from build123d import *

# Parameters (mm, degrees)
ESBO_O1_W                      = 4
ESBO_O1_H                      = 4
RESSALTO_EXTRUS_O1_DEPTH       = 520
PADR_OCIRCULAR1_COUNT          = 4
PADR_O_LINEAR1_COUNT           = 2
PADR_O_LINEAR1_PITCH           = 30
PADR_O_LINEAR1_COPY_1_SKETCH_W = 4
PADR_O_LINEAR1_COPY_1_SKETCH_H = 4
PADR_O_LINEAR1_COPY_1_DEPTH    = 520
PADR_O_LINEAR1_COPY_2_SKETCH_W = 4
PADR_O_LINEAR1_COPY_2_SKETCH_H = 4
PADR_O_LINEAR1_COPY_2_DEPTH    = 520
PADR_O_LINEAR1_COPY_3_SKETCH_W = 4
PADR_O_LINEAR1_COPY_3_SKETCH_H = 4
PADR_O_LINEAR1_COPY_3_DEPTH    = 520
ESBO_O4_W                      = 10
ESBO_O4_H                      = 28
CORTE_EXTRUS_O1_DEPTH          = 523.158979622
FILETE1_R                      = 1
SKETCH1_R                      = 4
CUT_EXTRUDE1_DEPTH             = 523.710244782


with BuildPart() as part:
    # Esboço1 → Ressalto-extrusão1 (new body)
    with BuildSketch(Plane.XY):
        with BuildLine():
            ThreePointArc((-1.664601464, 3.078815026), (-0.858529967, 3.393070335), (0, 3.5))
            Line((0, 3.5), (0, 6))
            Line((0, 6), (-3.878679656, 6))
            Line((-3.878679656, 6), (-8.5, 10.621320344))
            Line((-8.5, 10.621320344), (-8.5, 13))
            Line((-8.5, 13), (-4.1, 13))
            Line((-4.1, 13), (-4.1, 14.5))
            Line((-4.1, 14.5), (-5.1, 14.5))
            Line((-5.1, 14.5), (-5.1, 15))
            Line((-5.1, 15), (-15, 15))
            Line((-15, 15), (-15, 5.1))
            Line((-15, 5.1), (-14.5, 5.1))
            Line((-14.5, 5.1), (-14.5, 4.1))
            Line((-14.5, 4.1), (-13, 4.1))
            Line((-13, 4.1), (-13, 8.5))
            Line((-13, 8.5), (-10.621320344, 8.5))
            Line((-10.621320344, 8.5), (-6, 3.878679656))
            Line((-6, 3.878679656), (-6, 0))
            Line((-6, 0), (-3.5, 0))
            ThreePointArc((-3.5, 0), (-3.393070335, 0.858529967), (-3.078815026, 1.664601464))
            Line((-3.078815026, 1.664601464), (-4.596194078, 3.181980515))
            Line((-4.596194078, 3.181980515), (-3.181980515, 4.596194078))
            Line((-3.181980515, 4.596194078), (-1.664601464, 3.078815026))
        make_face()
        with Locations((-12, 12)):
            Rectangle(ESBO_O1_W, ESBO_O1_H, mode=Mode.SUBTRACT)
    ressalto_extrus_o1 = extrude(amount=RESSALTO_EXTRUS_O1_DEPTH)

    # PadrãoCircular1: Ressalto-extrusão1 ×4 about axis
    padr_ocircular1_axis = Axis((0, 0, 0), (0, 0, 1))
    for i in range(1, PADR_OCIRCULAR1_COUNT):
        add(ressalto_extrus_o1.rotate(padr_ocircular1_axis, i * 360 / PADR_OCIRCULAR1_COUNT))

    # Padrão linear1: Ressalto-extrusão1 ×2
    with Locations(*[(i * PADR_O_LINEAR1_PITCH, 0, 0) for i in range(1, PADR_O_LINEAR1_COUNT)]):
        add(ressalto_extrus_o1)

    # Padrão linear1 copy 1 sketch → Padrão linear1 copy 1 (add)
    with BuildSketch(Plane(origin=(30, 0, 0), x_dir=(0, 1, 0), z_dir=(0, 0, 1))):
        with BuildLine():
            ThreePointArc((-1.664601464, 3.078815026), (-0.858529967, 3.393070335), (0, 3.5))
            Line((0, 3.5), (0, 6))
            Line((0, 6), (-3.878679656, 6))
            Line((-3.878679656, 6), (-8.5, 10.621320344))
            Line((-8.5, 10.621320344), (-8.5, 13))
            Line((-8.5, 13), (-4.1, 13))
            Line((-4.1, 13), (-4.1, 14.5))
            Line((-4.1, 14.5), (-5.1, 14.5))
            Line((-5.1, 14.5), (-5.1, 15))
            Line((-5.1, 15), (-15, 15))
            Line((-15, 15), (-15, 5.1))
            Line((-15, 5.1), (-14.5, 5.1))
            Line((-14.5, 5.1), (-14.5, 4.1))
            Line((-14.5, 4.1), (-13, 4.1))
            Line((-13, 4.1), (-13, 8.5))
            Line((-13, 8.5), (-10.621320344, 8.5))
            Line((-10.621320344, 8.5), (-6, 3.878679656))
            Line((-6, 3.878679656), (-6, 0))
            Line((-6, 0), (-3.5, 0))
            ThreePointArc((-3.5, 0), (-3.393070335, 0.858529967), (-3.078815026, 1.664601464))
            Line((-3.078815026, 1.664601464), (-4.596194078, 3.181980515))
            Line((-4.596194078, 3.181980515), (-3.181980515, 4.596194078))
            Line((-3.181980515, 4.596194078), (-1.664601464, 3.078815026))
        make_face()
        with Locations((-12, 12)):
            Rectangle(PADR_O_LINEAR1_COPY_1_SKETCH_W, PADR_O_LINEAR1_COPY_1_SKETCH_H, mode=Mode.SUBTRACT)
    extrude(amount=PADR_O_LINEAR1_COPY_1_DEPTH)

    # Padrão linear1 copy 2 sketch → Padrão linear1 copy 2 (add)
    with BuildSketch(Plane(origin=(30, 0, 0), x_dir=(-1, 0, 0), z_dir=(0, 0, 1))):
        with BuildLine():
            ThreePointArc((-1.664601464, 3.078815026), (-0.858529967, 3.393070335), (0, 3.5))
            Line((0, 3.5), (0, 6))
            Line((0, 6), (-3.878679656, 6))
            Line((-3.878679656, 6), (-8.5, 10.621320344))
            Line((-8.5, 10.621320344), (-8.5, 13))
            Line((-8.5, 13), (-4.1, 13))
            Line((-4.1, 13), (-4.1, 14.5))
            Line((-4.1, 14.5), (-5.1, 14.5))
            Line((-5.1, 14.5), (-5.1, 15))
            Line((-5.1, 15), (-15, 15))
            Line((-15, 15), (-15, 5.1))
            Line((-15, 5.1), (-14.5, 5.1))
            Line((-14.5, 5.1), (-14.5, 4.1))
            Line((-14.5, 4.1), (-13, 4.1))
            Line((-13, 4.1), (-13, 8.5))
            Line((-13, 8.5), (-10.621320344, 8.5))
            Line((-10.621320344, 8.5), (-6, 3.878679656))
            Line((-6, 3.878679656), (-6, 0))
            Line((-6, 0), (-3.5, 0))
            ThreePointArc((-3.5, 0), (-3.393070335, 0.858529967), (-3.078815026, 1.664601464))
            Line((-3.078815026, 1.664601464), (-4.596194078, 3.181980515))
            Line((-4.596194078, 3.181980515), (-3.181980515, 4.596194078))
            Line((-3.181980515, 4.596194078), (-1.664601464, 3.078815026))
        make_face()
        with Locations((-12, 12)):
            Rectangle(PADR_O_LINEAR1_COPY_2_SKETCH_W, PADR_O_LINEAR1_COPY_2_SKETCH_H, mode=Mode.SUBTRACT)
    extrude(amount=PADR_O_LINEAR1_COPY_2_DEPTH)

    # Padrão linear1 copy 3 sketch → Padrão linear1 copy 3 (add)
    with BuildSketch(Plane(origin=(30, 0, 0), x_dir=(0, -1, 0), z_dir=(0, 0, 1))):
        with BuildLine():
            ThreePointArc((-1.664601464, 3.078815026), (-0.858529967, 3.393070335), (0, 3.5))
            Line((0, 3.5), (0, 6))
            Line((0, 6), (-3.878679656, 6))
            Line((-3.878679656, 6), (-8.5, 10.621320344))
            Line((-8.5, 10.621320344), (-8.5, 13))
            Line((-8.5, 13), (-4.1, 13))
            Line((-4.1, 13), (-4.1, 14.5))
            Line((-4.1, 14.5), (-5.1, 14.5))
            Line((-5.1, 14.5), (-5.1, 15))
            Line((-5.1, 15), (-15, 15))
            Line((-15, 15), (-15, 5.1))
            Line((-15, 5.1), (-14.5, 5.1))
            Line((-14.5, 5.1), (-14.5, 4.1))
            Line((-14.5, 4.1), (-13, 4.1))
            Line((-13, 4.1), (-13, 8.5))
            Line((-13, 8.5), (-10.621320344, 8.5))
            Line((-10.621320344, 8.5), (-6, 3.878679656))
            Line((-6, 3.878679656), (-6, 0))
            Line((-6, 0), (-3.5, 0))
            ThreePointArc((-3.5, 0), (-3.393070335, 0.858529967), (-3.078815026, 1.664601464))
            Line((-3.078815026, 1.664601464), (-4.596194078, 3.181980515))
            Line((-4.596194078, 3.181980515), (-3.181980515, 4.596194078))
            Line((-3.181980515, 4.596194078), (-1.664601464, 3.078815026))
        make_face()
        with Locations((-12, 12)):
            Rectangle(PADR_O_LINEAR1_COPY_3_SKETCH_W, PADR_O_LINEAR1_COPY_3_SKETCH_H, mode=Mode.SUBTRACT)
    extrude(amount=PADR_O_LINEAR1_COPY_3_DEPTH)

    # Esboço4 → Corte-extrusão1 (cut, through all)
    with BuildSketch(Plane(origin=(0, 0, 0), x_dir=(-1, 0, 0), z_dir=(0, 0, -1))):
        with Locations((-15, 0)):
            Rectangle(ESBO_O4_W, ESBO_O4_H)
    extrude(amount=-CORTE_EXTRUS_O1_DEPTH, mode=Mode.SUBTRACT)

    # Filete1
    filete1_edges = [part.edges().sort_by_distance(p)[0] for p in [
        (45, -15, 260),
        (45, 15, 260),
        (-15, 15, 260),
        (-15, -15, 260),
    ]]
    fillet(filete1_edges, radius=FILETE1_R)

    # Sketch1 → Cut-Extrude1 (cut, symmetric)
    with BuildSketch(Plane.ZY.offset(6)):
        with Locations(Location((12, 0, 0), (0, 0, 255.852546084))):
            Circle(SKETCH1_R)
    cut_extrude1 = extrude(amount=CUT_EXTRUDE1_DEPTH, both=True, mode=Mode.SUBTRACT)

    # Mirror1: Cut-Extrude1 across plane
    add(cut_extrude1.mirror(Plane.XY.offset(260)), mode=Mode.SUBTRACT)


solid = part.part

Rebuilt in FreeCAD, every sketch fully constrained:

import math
import FreeCAD as App
import Part
import Sketcher

V = App.Vector
Q = App.Units.Quantity


def edges_at(feature, points):
    """Names of the edges that pass closest to the given points."""
    edges = feature.Shape.Edges
    near = lambda p: min(range(len(edges)), key=lambda i: edges[i].distToShape(Part.Vertex(*p))[0])
    return sorted({f"Edge{near(p) + 1}" for p in points})


def add_polygon(sketch, points):
    """Adds a closed chain of lines whose ends are joined by coincident constraints."""
    first, n = sketch.GeometryCount, len(points)
    for a, b in zip(points, points[1:] + points[:1]):
        sketch.addGeometry(Part.LineSegment(App.Vector(*a, 0), App.Vector(*b, 0)), False)
    for i in range(n):
        sketch.addConstraint(Sketcher.Constraint("Coincident", first + i, 2, first + (i + 1) % n, 1))

doc = App.newDocument("Part")
params = doc.addObject("Spreadsheet::Sheet", "Params")
for row, (alias, value) in enumerate([
    ("sketch1_radius", "3.5 mm"),
    ("sketch1_width", "1 mm"),
    ("sketch1_width2", "4 mm"),
    ("sketch1_length", "2 mm"),
    ("sketch1_width3", "4.4 mm"),
    ("pad1_length", "520 mm"),
    ("linearpattern_pitch", "30 mm"),
    ("sketch2_radius", "3.5 mm"),
    ("sketch2_width", "1 mm"),
    ("sketch2_width2", "4 mm"),
    ("sketch2_length", "2 mm"),
    ("sketch2_width3", "2.5 mm"),
    ("pad2_length", "520 mm"),
    ("sketch3_radius", "3.5 mm"),
    ("sketch3_width", "1 mm"),
    ("sketch3_width2", "4 mm"),
    ("sketch3_length", "2 mm"),
    ("sketch3_width3", "4.4 mm"),
    ("pad3_length", "520 mm"),
    ("sketch4_radius", "3.5 mm"),
    ("sketch4_width", "1 mm"),
    ("sketch4_width2", "4 mm"),
    ("sketch4_length", "2 mm"),
    ("sketch4_width3", "2.5 mm"),
    ("pad4_length", "520 mm"),
    ("sketch5_width", "10 mm"),
    ("sketch5_height", "28 mm"),
    ("fillet_radius", "1 mm"),
    ("sketch6_diameter", "8 mm"),
    ("pocket2_length", "1047.42049 mm"),
], start=1):
    params.set(f"A{row}", alias)
    params.set(f"B{row}", "=" + value)
    params.setAlias(f"B{row}", alias)

body = doc.addObject("PartDesign::Body", "Body")

sketch1 = body.newObject("Sketcher::SketchObject", "Sketch")
sketch1.AttachmentSupport = (doc.getObject("XY_Plane"), [""])
sketch1.MapMode = "FlatFace"
sketch1.addGeometry(Part.ArcOfCircle(Part.Circle(V(0, 0, 0), V(0, 0, 1), 3.5), math.radians(90), math.radians(118.39845)), False)
sketch1.addGeometry(Part.LineSegment(V(0, 3.5, 0), V(0, 6, 0)), False)
sketch1.addGeometry(Part.LineSegment(V(0, 6, 0), V(-3.87868, 6, 0)), False)
sketch1.addGeometry(Part.LineSegment(V(-3.87868, 6, 0), V(-8.5, 10.62132, 0)), False)
sketch1.addGeometry(Part.LineSegment(V(-8.5, 10.62132, 0), V(-8.5, 13, 0)), False)
sketch1.addGeometry(Part.LineSegment(V(-8.5, 13, 0), V(-4.1, 13, 0)), False)
sketch1.addGeometry(Part.LineSegment(V(-4.1, 13, 0), V(-4.1, 14.5, 0)), False)
sketch1.addGeometry(Part.LineSegment(V(-4.1, 14.5, 0), V(-5.1, 14.5, 0)), False)
sketch1.addGeometry(Part.LineSegment(V(-5.1, 14.5, 0), V(-5.1, 15, 0)), False)
sketch1.addGeometry(Part.LineSegment(V(-5.1, 15, 0), V(-15, 15, 0)), False)
sketch1.addGeometry(Part.LineSegment(V(-15, 15, 0), V(-15, 5.1, 0)), False)
sketch1.addGeometry(Part.LineSegment(V(-15, 5.1, 0), V(-14.5, 5.1, 0)), False)
sketch1.addGeometry(Part.LineSegment(V(-14.5, 5.1, 0), V(-14.5, 4.1, 0)), False)
sketch1.addGeometry(Part.LineSegment(V(-14.5, 4.1, 0), V(-13, 4.1, 0)), False)
sketch1.addGeometry(Part.LineSegment(V(-13, 4.1, 0), V(-13, 8.5, 0)), False)
sketch1.addGeometry(Part.LineSegment(V(-13, 8.5, 0), V(-10.62132, 8.5, 0)), False)
sketch1.addGeometry(Part.LineSegment(V(-10.62132, 8.5, 0), V(-6, 3.87868, 0)), False)
sketch1.addGeometry(Part.LineSegment(V(-6, 3.87868, 0), V(-6, 0, 0)), False)
sketch1.addGeometry(Part.LineSegment(V(-6, 0, 0), V(-3.5, 0, 0)), False)
sketch1.addGeometry(Part.ArcOfCircle(Part.Circle(V(0, 0, 0), V(0, 0, 1), 3.5), math.radians(151.60155), math.radians(180)), False)
sketch1.addGeometry(Part.LineSegment(V(-3.078815, 1.664601, 0), V(-4.596194, 3.181981, 0)), False)
sketch1.addGeometry(Part.LineSegment(V(-4.596194, 3.181981, 0), V(-3.181981, 4.596194, 0)), False)
sketch1.addGeometry(Part.LineSegment(V(-3.181981, 4.596194, 0), V(-1.664601, 3.078815, 0)), False)
add_polygon(sketch1, [(-10, 10), (-14, 10), (-14, 14), (-10, 14)])
sketch1.addConstraint([
    Sketcher.Constraint("Coincident", 0, 1, 1, 1),
    Sketcher.Constraint("Coincident", 1, 2, 2, 1),
    Sketcher.Constraint("Coincident", 2, 2, 3, 1),
    Sketcher.Constraint("Coincident", 3, 2, 4, 1),
    Sketcher.Constraint("Coincident", 4, 2, 5, 1),
    Sketcher.Constraint("Coincident", 5, 2, 6, 1),
    Sketcher.Constraint("Coincident", 6, 2, 7, 1),
    Sketcher.Constraint("Coincident", 7, 2, 8, 1),
    Sketcher.Constraint("Coincident", 8, 2, 9, 1),
    Sketcher.Constraint("Coincident", 9, 2, 10, 1),
    Sketcher.Constraint("Coincident", 10, 2, 11, 1),
    Sketcher.Constraint("Coincident", 11, 2, 12, 1),
    Sketcher.Constraint("Coincident", 12, 2, 13, 1),
    Sketcher.Constraint("Coincident", 13, 2, 14, 1),
    Sketcher.Constraint("Coincident", 14, 2, 15, 1),
    Sketcher.Constraint("Coincident", 15, 2, 16, 1),
    Sketcher.Constraint("Coincident", 16, 2, 17, 1),
    Sketcher.Constraint("Coincident", 17, 2, 18, 1),
    Sketcher.Constraint("Coincident", 18, 2, 19, 2),
    Sketcher.Constraint("Coincident", 19, 1, 20, 1),
    Sketcher.Constraint("Coincident", 20, 2, 21, 1),
    Sketcher.Constraint("Coincident", 21, 2, 22, 1),
    Sketcher.Constraint("Coincident", 22, 2, 0, 2),
    Sketcher.Constraint("Vertical", 1),
    Sketcher.Constraint("Horizontal", 2),
    Sketcher.Constraint("Vertical", 4),
    Sketcher.Constraint("Horizontal", 5),
    Sketcher.Constraint("Vertical", 6),
    Sketcher.Constraint("Horizontal", 7),
    Sketcher.Constraint("Vertical", 8),
    Sketcher.Constraint("Horizontal", 9),
    Sketcher.Constraint("Vertical", 10),
    Sketcher.Constraint("Horizontal", 11),
    Sketcher.Constraint("Vertical", 12),
    Sketcher.Constraint("Horizontal", 13),
    Sketcher.Constraint("Vertical", 14),
    Sketcher.Constraint("Horizontal", 15),
    Sketcher.Constraint("Vertical", 17),
    Sketcher.Constraint("Horizontal", 18),
    Sketcher.Constraint("Horizontal", 23),
    Sketcher.Constraint("Vertical", 24),
    Sketcher.Constraint("Horizontal", 25),
    Sketcher.Constraint("Vertical", 26),
    Sketcher.Constraint("Coincident", 0, 3, -1, 1),
    Sketcher.Constraint("Coincident", 19, 3, -1, 1),
    Sketcher.Constraint("Equal", 0, 19),
    Sketcher.Constraint("PointOnObject", 0, 1, -2),
    Sketcher.Constraint("PointOnObject", 17, 2, -1),
    Sketcher.Constraint("Parallel", 3, 16),
    Sketcher.Constraint("Parallel", 16, 20),
    Sketcher.Constraint("Perpendicular", 20, 21),
    Sketcher.Constraint("Perpendicular", 21, 22),
    Sketcher.Constraint("Equal", 18, 1),
    Sketcher.Constraint("Equal", 15, 4),
    Sketcher.Constraint("Equal", 13, 6),
    Sketcher.Constraint("Equal", 11, 8),
    Sketcher.Constraint("Equal", 9, 10),
    Sketcher.Constraint("Equal", 7, 12),
    Sketcher.Constraint("Equal", 5, 14),
    Sketcher.Constraint("Equal", 2, 17),
    Sketcher.Constraint("Equal", 25, 24),
    Sketcher.Constraint("Equal", 20, 22),
    Sketcher.Constraint("Radius", 0, Q("3.5 mm")),
    Sketcher.Constraint("DistanceX", 7, 2, 7, 1, Q("1 mm")),
    Sketcher.Constraint("DistanceX", 23, 2, 23, 1, Q("4 mm")),
    Sketcher.Constraint("Angle", 3, Q("135 deg")),
    Sketcher.Constraint("Distance", 21, Q("2 mm")),
    Sketcher.Constraint("DistanceX", 5, 1, 5, 2, Q("4.4 mm")),
    Sketcher.Constraint("DistanceX", 9, 2, 9, 1, Q("9.9 mm")),
    Sketcher.Constraint("DistanceX", 11, 1, 11, 2, Q("0.5 mm")),
    Sketcher.Constraint("DistanceX", 13, 1, 13, 2, Q("1.5 mm")),
    Sketcher.Constraint("DistanceX", 18, 1, 18, 2, Q("2.5 mm")),
    Sketcher.Constraint("DistanceY", -1, 1, 4, 2, Q("13 mm")),
    Sketcher.Constraint("DistanceX", 23, 2, -1, 1, Q("14 mm")),
    Sketcher.Constraint("DistanceY", -1, 1, 23, 2, Q("10 mm")),
    Sketcher.Constraint("Distance", 20, Q("2.145898 mm")),
    Sketcher.Constraint("DistanceX", 2, 2, 2, 1, Q("3.87868 mm")),
])
sketch1.setExpression("Constraints[66]", "Params.sketch1_radius")
sketch1.setExpression("Constraints[67]", "Params.sketch1_width")
sketch1.setExpression("Constraints[68]", "Params.sketch1_width2")
sketch1.setExpression("Constraints[70]", "Params.sketch1_length")
sketch1.setExpression("Constraints[71]", "Params.sketch1_width3")
pad1 = body.newObject("PartDesign::Pad", "Pad")
pad1.Profile = sketch1
pad1.setExpression("Length", "Params.pad1_length")
doc.recompute()

polarpattern = body.newObject("PartDesign::PolarPattern", "PolarPattern")
polarpattern.Originals = [pad1]
polarpattern.Axis = (doc.getObject("Z_Axis"), [""])
polarpattern.Angle = 360
polarpattern.Occurrences = 4
body.Tip = polarpattern
doc.recompute()

linearpattern = body.newObject("PartDesign::LinearPattern", "LinearPattern")
linearpattern.Originals = [pad1]
linearpattern.Direction = (doc.getObject("X_Axis"), [""])
linearpattern.Mode = "offset"
linearpattern.setExpression("Offset", "Params.linearpattern_pitch")
linearpattern.Occurrences = 2
body.Tip = linearpattern

sketch2 = body.newObject("Sketcher::SketchObject", "Sketch001")
sketch2.AttachmentSupport = (doc.getObject("XY_Plane"), [""])
sketch2.MapMode = "FlatFace"
sketch2.addGeometry(Part.ArcOfCircle(Part.Circle(V(30, 0, 0), V(0, 0, 1), 3.5), math.radians(180), math.radians(208.39845)), False)
sketch2.addGeometry(Part.LineSegment(V(26.5, 0, 0), V(24, 0, 0)), False)
sketch2.addGeometry(Part.LineSegment(V(24, 0, 0), V(24, -3.87868, 0)), False)
sketch2.addGeometry(Part.LineSegment(V(24, -3.87868, 0), V(19.37868, -8.5, 0)), False)
sketch2.addGeometry(Part.LineSegment(V(19.37868, -8.5, 0), V(17, -8.5, 0)), False)
sketch2.addGeometry(Part.LineSegment(V(17, -8.5, 0), V(17, -4.1, 0)), False)
sketch2.addGeometry(Part.LineSegment(V(17, -4.1, 0), V(15.5, -4.1, 0)), False)
sketch2.addGeometry(Part.LineSegment(V(15.5, -4.1, 0), V(15.5, -5.1, 0)), False)
sketch2.addGeometry(Part.LineSegment(V(15.5, -5.1, 0), V(15, -5.1, 0)), False)
sketch2.addGeometry(Part.LineSegment(V(15, -5.1, 0), V(15, -15, 0)), False)
sketch2.addGeometry(Part.LineSegment(V(15, -15, 0), V(24.9, -15, 0)), False)
sketch2.addGeometry(Part.LineSegment(V(24.9, -15, 0), V(24.9, -14.5, 0)), False)
sketch2.addGeometry(Part.LineSegment(V(24.9, -14.5, 0), V(25.9, -14.5, 0)), False)
sketch2.addGeometry(Part.LineSegment(V(25.9, -14.5, 0), V(25.9, -13, 0)), False)
sketch2.addGeometry(Part.LineSegment(V(25.9, -13, 0), V(21.5, -13, 0)), False)
sketch2.addGeometry(Part.LineSegment(V(21.5, -13, 0), V(21.5, -10.62132, 0)), False)
sketch2.addGeometry(Part.LineSegment(V(21.5, -10.62132, 0), V(26.12132, -6, 0)), False)
sketch2.addGeometry(Part.LineSegment(V(26.12132, -6, 0), V(30, -6, 0)), False)
sketch2.addGeometry(Part.LineSegment(V(30, -6, 0), V(30, -3.5, 0)), False)
sketch2.addGeometry(Part.ArcOfCircle(Part.Circle(V(30, 0, 0), V(0, 0, 1), 3.5), math.radians(-118.39845), math.radians(-90)), False)
sketch2.addGeometry(Part.LineSegment(V(28.335399, -3.078815, 0), V(26.818019, -4.596194, 0)), False)
sketch2.addGeometry(Part.LineSegment(V(26.818019, -4.596194, 0), V(25.403806, -3.181981, 0)), False)
sketch2.addGeometry(Part.LineSegment(V(25.403806, -3.181981, 0), V(26.921185, -1.664601, 0)), False)
add_polygon(sketch2, [(20, -10), (20, -14), (16, -14), (16, -10)])
sketch2.addConstraint([
    Sketcher.Constraint("Coincident", 0, 1, 1, 1),
    Sketcher.Constraint("Coincident", 1, 2, 2, 1),
    Sketcher.Constraint("Coincident", 2, 2, 3, 1),
    Sketcher.Constraint("Coincident", 3, 2, 4, 1),
    Sketcher.Constraint("Coincident", 4, 2, 5, 1),
    Sketcher.Constraint("Coincident", 5, 2, 6, 1),
    Sketcher.Constraint("Coincident", 6, 2, 7, 1),
    Sketcher.Constraint("Coincident", 7, 2, 8, 1),
    Sketcher.Constraint("Coincident", 8, 2, 9, 1),
    Sketcher.Constraint("Coincident", 9, 2, 10, 1),
    Sketcher.Constraint("Coincident", 10, 2, 11, 1),
    Sketcher.Constraint("Coincident", 11, 2, 12, 1),
    Sketcher.Constraint("Coincident", 12, 2, 13, 1),
    Sketcher.Constraint("Coincident", 13, 2, 14, 1),
    Sketcher.Constraint("Coincident", 14, 2, 15, 1),
    Sketcher.Constraint("Coincident", 15, 2, 16, 1),
    Sketcher.Constraint("Coincident", 16, 2, 17, 1),
    Sketcher.Constraint("Coincident", 17, 2, 18, 1),
    Sketcher.Constraint("Coincident", 18, 2, 19, 2),
    Sketcher.Constraint("Coincident", 19, 1, 20, 1),
    Sketcher.Constraint("Coincident", 20, 2, 21, 1),
    Sketcher.Constraint("Coincident", 21, 2, 22, 1),
    Sketcher.Constraint("Coincident", 22, 2, 0, 2),
    Sketcher.Constraint("Horizontal", 1),
    Sketcher.Constraint("Vertical", 2),
    Sketcher.Constraint("Horizontal", 4),
    Sketcher.Constraint("Vertical", 5),
    Sketcher.Constraint("Horizontal", 6),
    Sketcher.Constraint("Vertical", 7),
    Sketcher.Constraint("Horizontal", 8),
    Sketcher.Constraint("Vertical", 9),
    Sketcher.Constraint("Horizontal", 10),
    Sketcher.Constraint("Vertical", 11),
    Sketcher.Constraint("Horizontal", 12),
    Sketcher.Constraint("Vertical", 13),
    Sketcher.Constraint("Horizontal", 14),
    Sketcher.Constraint("Vertical", 15),
    Sketcher.Constraint("Horizontal", 17),
    Sketcher.Constraint("Vertical", 18),
    Sketcher.Constraint("Vertical", 23),
    Sketcher.Constraint("Horizontal", 24),
    Sketcher.Constraint("Vertical", 25),
    Sketcher.Constraint("Horizontal", 26),
    Sketcher.Constraint("Coincident", 19, 3, 0, 3),
    Sketcher.Constraint("Equal", 0, 19),
    Sketcher.Constraint("PointOnObject", 0, 3, -1),
    Sketcher.Constraint("PointOnObject", 0, 1, -1),
    Sketcher.Constraint("Parallel", 3, 16),
    Sketcher.Constraint("Parallel", 16, 20),
    Sketcher.Constraint("Perpendicular", 20, 21),
    Sketcher.Constraint("Perpendicular", 21, 22),
    Sketcher.Constraint("Vertical", 19, 3, 17, 2),
    Sketcher.Constraint("Equal", 17, 2),
    Sketcher.Constraint("Equal", 14, 5),
    Sketcher.Constraint("Equal", 12, 7),
    Sketcher.Constraint("Equal", 10, 9),
    Sketcher.Constraint("Equal", 8, 11),
    Sketcher.Constraint("Equal", 6, 13),
    Sketcher.Constraint("Equal", 4, 15),
    Sketcher.Constraint("Equal", 1, 18),
    Sketcher.Constraint("Equal", 26, 23),
    Sketcher.Constraint("Equal", 20, 22),
    Sketcher.Constraint("Radius", 0, Q("3.5 mm")),
    Sketcher.Constraint("DistanceX", 12, 1, 12, 2, Q("1 mm")),
    Sketcher.Constraint("DistanceX", 24, 2, 24, 1, Q("4 mm")),
    Sketcher.Constraint("Angle", 3, Q("-135 deg")),
    Sketcher.Constraint("Distance", 21, Q("2 mm")),
    Sketcher.Constraint("DistanceX", 1, 2, 1, 1, Q("2.5 mm")),
    Sketcher.Constraint("DistanceX", 6, 2, 6, 1, Q("1.5 mm")),
    Sketcher.Constraint("DistanceX", 8, 2, 8, 1, Q("0.5 mm")),
    Sketcher.Constraint("DistanceX", 10, 1, 10, 2, Q("9.9 mm")),
    Sketcher.Constraint("DistanceX", 14, 2, 14, 1, Q("4.4 mm")),
    Sketcher.Constraint("DistanceX", -1, 1, 0, 3, Q("30 mm")),
    Sketcher.Constraint("DistanceX", -1, 1, 4, 2, Q("17 mm")),
    Sketcher.Constraint("DistanceX", -1, 1, 23, 2, Q("20 mm")),
    Sketcher.Constraint("DistanceY", 23, 2, -1, 1, Q("14 mm")),
    Sketcher.Constraint("Distance", 20, Q("2.145898 mm")),
    Sketcher.Constraint("DistanceX", 4, 2, 4, 1, Q("2.37868 mm")),
])
sketch2.setExpression("Constraints[66]", "Params.sketch2_radius")
sketch2.setExpression("Constraints[67]", "Params.sketch2_width")
sketch2.setExpression("Constraints[68]", "Params.sketch2_width2")
sketch2.setExpression("Constraints[70]", "Params.sketch2_length")
sketch2.setExpression("Constraints[71]", "Params.sketch2_width3")
pad2 = body.newObject("PartDesign::Pad", "Pad001")
pad2.Profile = sketch2
pad2.setExpression("Length", "Params.pad2_length")

sketch3 = body.newObject("Sketcher::SketchObject", "Sketch002")
sketch3.AttachmentSupport = (doc.getObject("XY_Plane"), [""])
sketch3.MapMode = "FlatFace"
sketch3.addGeometry(Part.ArcOfCircle(Part.Circle(V(30, 0, 0), V(0, 0, 1), 3.5), math.radians(-90), math.radians(-61.60155)), False)
sketch3.addGeometry(Part.LineSegment(V(30, -3.5, 0), V(30, -6, 0)), False)
sketch3.addGeometry(Part.LineSegment(V(30, -6, 0), V(33.87868, -6, 0)), False)
sketch3.addGeometry(Part.LineSegment(V(33.87868, -6, 0), V(38.5, -10.62132, 0)), False)
sketch3.addGeometry(Part.LineSegment(V(38.5, -10.62132, 0), V(38.5, -13, 0)), False)
sketch3.addGeometry(Part.LineSegment(V(38.5, -13, 0), V(34.1, -13, 0)), False)
sketch3.addGeometry(Part.LineSegment(V(34.1, -13, 0), V(34.1, -14.5, 0)), False)
sketch3.addGeometry(Part.LineSegment(V(34.1, -14.5, 0), V(35.1, -14.5, 0)), False)
sketch3.addGeometry(Part.LineSegment(V(35.1, -14.5, 0), V(35.1, -15, 0)), False)
sketch3.addGeometry(Part.LineSegment(V(35.1, -15, 0), V(45, -15, 0)), False)
sketch3.addGeometry(Part.LineSegment(V(45, -15, 0), V(45, -5.1, 0)), False)
sketch3.addGeometry(Part.LineSegment(V(45, -5.1, 0), V(44.5, -5.1, 0)), False)
sketch3.addGeometry(Part.LineSegment(V(44.5, -5.1, 0), V(44.5, -4.1, 0)), False)
sketch3.addGeometry(Part.LineSegment(V(44.5, -4.1, 0), V(43, -4.1, 0)), False)
sketch3.addGeometry(Part.LineSegment(V(43, -4.1, 0), V(43, -8.5, 0)), False)
sketch3.addGeometry(Part.LineSegment(V(43, -8.5, 0), V(40.62132, -8.5, 0)), False)
sketch3.addGeometry(Part.LineSegment(V(40.62132, -8.5, 0), V(36, -3.87868, 0)), False)
sketch3.addGeometry(Part.LineSegment(V(36, -3.87868, 0), V(36, 0, 0)), False)
sketch3.addGeometry(Part.LineSegment(V(36, 0, 0), V(33.5, 0, 0)), False)
sketch3.addGeometry(Part.ArcOfCircle(Part.Circle(V(30, 0, 0), V(0, 0, 1), 3.5), math.radians(-28.39845), math.radians(0)), False)
sketch3.addGeometry(Part.LineSegment(V(33.078815, -1.664601, 0), V(34.596194, -3.181981, 0)), False)
sketch3.addGeometry(Part.LineSegment(V(34.596194, -3.181981, 0), V(33.181981, -4.596194, 0)), False)
sketch3.addGeometry(Part.LineSegment(V(33.181981, -4.596194, 0), V(31.664601, -3.078815, 0)), False)
add_polygon(sketch3, [(40, -10), (44, -10), (44, -14), (40, -14)])
sketch3.addConstraint([
    Sketcher.Constraint("Coincident", 0, 1, 1, 1),
    Sketcher.Constraint("Coincident", 1, 2, 2, 1),
    Sketcher.Constraint("Coincident", 2, 2, 3, 1),
    Sketcher.Constraint("Coincident", 3, 2, 4, 1),
    Sketcher.Constraint("Coincident", 4, 2, 5, 1),
    Sketcher.Constraint("Coincident", 5, 2, 6, 1),
    Sketcher.Constraint("Coincident", 6, 2, 7, 1),
    Sketcher.Constraint("Coincident", 7, 2, 8, 1),
    Sketcher.Constraint("Coincident", 8, 2, 9, 1),
    Sketcher.Constraint("Coincident", 9, 2, 10, 1),
    Sketcher.Constraint("Coincident", 10, 2, 11, 1),
    Sketcher.Constraint("Coincident", 11, 2, 12, 1),
    Sketcher.Constraint("Coincident", 12, 2, 13, 1),
    Sketcher.Constraint("Coincident", 13, 2, 14, 1),
    Sketcher.Constraint("Coincident", 14, 2, 15, 1),
    Sketcher.Constraint("Coincident", 15, 2, 16, 1),
    Sketcher.Constraint("Coincident", 16, 2, 17, 1),
    Sketcher.Constraint("Coincident", 17, 2, 18, 1),
    Sketcher.Constraint("Coincident", 18, 2, 19, 2),
    Sketcher.Constraint("Coincident", 19, 1, 20, 1),
    Sketcher.Constraint("Coincident", 20, 2, 21, 1),
    Sketcher.Constraint("Coincident", 21, 2, 22, 1),
    Sketcher.Constraint("Coincident", 22, 2, 0, 2),
    Sketcher.Constraint("Vertical", 1),
    Sketcher.Constraint("Horizontal", 2),
    Sketcher.Constraint("Vertical", 4),
    Sketcher.Constraint("Horizontal", 5),
    Sketcher.Constraint("Vertical", 6),
    Sketcher.Constraint("Horizontal", 7),
    Sketcher.Constraint("Vertical", 8),
    Sketcher.Constraint("Horizontal", 9),
    Sketcher.Constraint("Vertical", 10),
    Sketcher.Constraint("Horizontal", 11),
    Sketcher.Constraint("Vertical", 12),
    Sketcher.Constraint("Horizontal", 13),
    Sketcher.Constraint("Vertical", 14),
    Sketcher.Constraint("Horizontal", 15),
    Sketcher.Constraint("Vertical", 17),
    Sketcher.Constraint("Horizontal", 18),
    Sketcher.Constraint("Horizontal", 23),
    Sketcher.Constraint("Vertical", 24),
    Sketcher.Constraint("Horizontal", 25),
    Sketcher.Constraint("Vertical", 26),
    Sketcher.Constraint("Coincident", 19, 3, 0, 3),
    Sketcher.Constraint("Equal", 0, 19),
    Sketcher.Constraint("PointOnObject", 0, 3, -1),
    Sketcher.Constraint("PointOnObject", 17, 2, -1),
    Sketcher.Constraint("Parallel", 3, 16),
    Sketcher.Constraint("Parallel", 16, 20),
    Sketcher.Constraint("Perpendicular", 20, 21),
    Sketcher.Constraint("Perpendicular", 21, 22),
    Sketcher.Constraint("Vertical", 19, 3, 0, 1),
    Sketcher.Constraint("Equal", 18, 1),
    Sketcher.Constraint("Equal", 15, 4),
    Sketcher.Constraint("Equal", 13, 6),
    Sketcher.Constraint("Equal", 11, 8),
    Sketcher.Constraint("Equal", 9, 10),
    Sketcher.Constraint("Equal", 7, 12),
    Sketcher.Constraint("Equal", 5, 14),
    Sketcher.Constraint("Equal", 2, 17),
    Sketcher.Constraint("Equal", 25, 24),
    Sketcher.Constraint("Equal", 20, 22),
    Sketcher.Constraint("Radius", 0, Q("3.5 mm")),
    Sketcher.Constraint("DistanceX", 7, 1, 7, 2, Q("1 mm")),
    Sketcher.Constraint("DistanceX", 23, 1, 23, 2, Q("4 mm")),
    Sketcher.Constraint("Angle", 3, Q("-45 deg")),
    Sketcher.Constraint("Distance", 21, Q("2 mm")),
    Sketcher.Constraint("DistanceX", 5, 2, 5, 1, Q("4.4 mm")),
    Sketcher.Constraint("DistanceX", 9, 1, 9, 2, Q("9.9 mm")),
    Sketcher.Constraint("DistanceX", 11, 2, 11, 1, Q("0.5 mm")),
    Sketcher.Constraint("DistanceX", 13, 2, 13, 1, Q("1.5 mm")),
    Sketcher.Constraint("DistanceX", 18, 2, 18, 1, Q("2.5 mm")),
    Sketcher.Constraint("DistanceX", -1, 1, 0, 3, Q("30 mm")),
    Sketcher.Constraint("DistanceY", 4, 2, -1, 1, Q("13 mm")),
    Sketcher.Constraint("DistanceX", -1, 1, 23, 2, Q("44 mm")),
    Sketcher.Constraint("DistanceY", 23, 2, -1, 1, Q("10 mm")),
    Sketcher.Constraint("Distance", 20, Q("2.145898 mm")),
    Sketcher.Constraint("DistanceX", 2, 1, 2, 2, Q("3.87868 mm")),
])
sketch3.setExpression("Constraints[66]", "Params.sketch3_radius")
sketch3.setExpression("Constraints[67]", "Params.sketch3_width")
sketch3.setExpression("Constraints[68]", "Params.sketch3_width2")
sketch3.setExpression("Constraints[70]", "Params.sketch3_length")
sketch3.setExpression("Constraints[71]", "Params.sketch3_width3")
pad3 = body.newObject("PartDesign::Pad", "Pad002")
pad3.Profile = sketch3
pad3.setExpression("Length", "Params.pad3_length")

sketch4 = body.newObject("Sketcher::SketchObject", "Sketch003")
sketch4.AttachmentSupport = (doc.getObject("XY_Plane"), [""])
sketch4.MapMode = "FlatFace"
sketch4.addGeometry(Part.ArcOfCircle(Part.Circle(V(30, 0, 0), V(0, 0, 1), 3.5), math.radians(0), math.radians(28.39845)), False)
sketch4.addGeometry(Part.LineSegment(V(33.5, 0, 0), V(36, 0, 0)), False)
sketch4.addGeometry(Part.LineSegment(V(36, 0, 0), V(36, 3.87868, 0)), False)
sketch4.addGeometry(Part.LineSegment(V(36, 3.87868, 0), V(40.62132, 8.5, 0)), False)
sketch4.addGeometry(Part.LineSegment(V(40.62132, 8.5, 0), V(43, 8.5, 0)), False)
sketch4.addGeometry(Part.LineSegment(V(43, 8.5, 0), V(43, 4.1, 0)), False)
sketch4.addGeometry(Part.LineSegment(V(43, 4.1, 0), V(44.5, 4.1, 0)), False)
sketch4.addGeometry(Part.LineSegment(V(44.5, 4.1, 0), V(44.5, 5.1, 0)), False)
sketch4.addGeometry(Part.LineSegment(V(44.5, 5.1, 0), V(45, 5.1, 0)), False)
sketch4.addGeometry(Part.LineSegment(V(45, 5.1, 0), V(45, 15, 0)), False)
sketch4.addGeometry(Part.LineSegment(V(45, 15, 0), V(35.1, 15, 0)), False)
sketch4.addGeometry(Part.LineSegment(V(35.1, 15, 0), V(35.1, 14.5, 0)), False)
sketch4.addGeometry(Part.LineSegment(V(35.1, 14.5, 0), V(34.1, 14.5, 0)), False)
sketch4.addGeometry(Part.LineSegment(V(34.1, 14.5, 0), V(34.1, 13, 0)), False)
sketch4.addGeometry(Part.LineSegment(V(34.1, 13, 0), V(38.5, 13, 0)), False)
sketch4.addGeometry(Part.LineSegment(V(38.5, 13, 0), V(38.5, 10.62132, 0)), False)
sketch4.addGeometry(Part.LineSegment(V(38.5, 10.62132, 0), V(33.87868, 6, 0)), False)
sketch4.addGeometry(Part.LineSegment(V(33.87868, 6, 0), V(30, 6, 0)), False)
sketch4.addGeometry(Part.LineSegment(V(30, 6, 0), V(30, 3.5, 0)), False)
sketch4.addGeometry(Part.ArcOfCircle(Part.Circle(V(30, 0, 0), V(0, 0, 1), 3.5), math.radians(61.60155), math.radians(90)), False)
sketch4.addGeometry(Part.LineSegment(V(31.664601, 3.078815, 0), V(33.181981, 4.596194, 0)), False)
sketch4.addGeometry(Part.LineSegment(V(33.181981, 4.596194, 0), V(34.596194, 3.181981, 0)), False)
sketch4.addGeometry(Part.LineSegment(V(34.596194, 3.181981, 0), V(33.078815, 1.664601, 0)), False)
add_polygon(sketch4, [(40, 10), (40, 14), (44, 14), (44, 10)])
sketch4.addConstraint([
    Sketcher.Constraint("Coincident", 0, 1, 1, 1),
    Sketcher.Constraint("Coincident", 1, 2, 2, 1),
    Sketcher.Constraint("Coincident", 2, 2, 3, 1),
    Sketcher.Constraint("Coincident", 3, 2, 4, 1),
    Sketcher.Constraint("Coincident", 4, 2, 5, 1),
    Sketcher.Constraint("Coincident", 5, 2, 6, 1),
    Sketcher.Constraint("Coincident", 6, 2, 7, 1),
    Sketcher.Constraint("Coincident", 7, 2, 8, 1),
    Sketcher.Constraint("Coincident", 8, 2, 9, 1),
    Sketcher.Constraint("Coincident", 9, 2, 10, 1),
    Sketcher.Constraint("Coincident", 10, 2, 11, 1),
    Sketcher.Constraint("Coincident", 11, 2, 12, 1),
    Sketcher.Constraint("Coincident", 12, 2, 13, 1),
    Sketcher.Constraint("Coincident", 13, 2, 14, 1),
    Sketcher.Constraint("Coincident", 14, 2, 15, 1),
    Sketcher.Constraint("Coincident", 15, 2, 16, 1),
    Sketcher.Constraint("Coincident", 16, 2, 17, 1),
    Sketcher.Constraint("Coincident", 17, 2, 18, 1),
    Sketcher.Constraint("Coincident", 18, 2, 19, 2),
    Sketcher.Constraint("Coincident", 19, 1, 20, 1),
    Sketcher.Constraint("Coincident", 20, 2, 21, 1),
    Sketcher.Constraint("Coincident", 21, 2, 22, 1),
    Sketcher.Constraint("Coincident", 22, 2, 0, 2),
    Sketcher.Constraint("Horizontal", 1),
    Sketcher.Constraint("Vertical", 2),
    Sketcher.Constraint("Horizontal", 4),
    Sketcher.Constraint("Vertical", 5),
    Sketcher.Constraint("Horizontal", 6),
    Sketcher.Constraint("Vertical", 7),
    Sketcher.Constraint("Horizontal", 8),
    Sketcher.Constraint("Vertical", 9),
    Sketcher.Constraint("Horizontal", 10),
    Sketcher.Constraint("Vertical", 11),
    Sketcher.Constraint("Horizontal", 12),
    Sketcher.Constraint("Vertical", 13),
    Sketcher.Constraint("Horizontal", 14),
    Sketcher.Constraint("Vertical", 15),
    Sketcher.Constraint("Horizontal", 17),
    Sketcher.Constraint("Vertical", 18),
    Sketcher.Constraint("Vertical", 23),
    Sketcher.Constraint("Horizontal", 24),
    Sketcher.Constraint("Vertical", 25),
    Sketcher.Constraint("Horizontal", 26),
    Sketcher.Constraint("Coincident", 19, 3, 0, 3),
    Sketcher.Constraint("Equal", 0, 19),
    Sketcher.Constraint("PointOnObject", 0, 3, -1),
    Sketcher.Constraint("PointOnObject", 0, 1, -1),
    Sketcher.Constraint("Parallel", 3, 16),
    Sketcher.Constraint("Parallel", 16, 20),
    Sketcher.Constraint("Perpendicular", 20, 21),
    Sketcher.Constraint("Perpendicular", 21, 22),
    Sketcher.Constraint("Vertical", 19, 3, 17, 2),
    Sketcher.Constraint("Equal", 17, 2),
    Sketcher.Constraint("Equal", 14, 5),
    Sketcher.Constraint("Equal", 12, 7),
    Sketcher.Constraint("Equal", 10, 9),
    Sketcher.Constraint("Equal", 8, 11),
    Sketcher.Constraint("Equal", 6, 13),
    Sketcher.Constraint("Equal", 4, 15),
    Sketcher.Constraint("Equal", 1, 18),
    Sketcher.Constraint("Equal", 26, 23),
    Sketcher.Constraint("Equal", 20, 22),
    Sketcher.Constraint("Radius", 0, Q("3.5 mm")),
    Sketcher.Constraint("DistanceX", 12, 2, 12, 1, Q("1 mm")),
    Sketcher.Constraint("DistanceX", 24, 1, 24, 2, Q("4 mm")),
    Sketcher.Constraint("Angle", 3, Q("45 deg")),
    Sketcher.Constraint("Distance", 21, Q("2 mm")),
    Sketcher.Constraint("DistanceX", 1, 1, 1, 2, Q("2.5 mm")),
    Sketcher.Constraint("DistanceX", 6, 1, 6, 2, Q("1.5 mm")),
    Sketcher.Constraint("DistanceX", 8, 1, 8, 2, Q("0.5 mm")),
    Sketcher.Constraint("DistanceX", 10, 2, 10, 1, Q("9.9 mm")),
    Sketcher.Constraint("DistanceX", 14, 1, 14, 2, Q("4.4 mm")),
    Sketcher.Constraint("DistanceX", -1, 1, 0, 3, Q("30 mm")),
    Sketcher.Constraint("DistanceX", -1, 1, 4, 2, Q("43 mm")),
    Sketcher.Constraint("DistanceX", -1, 1, 23, 2, Q("40 mm")),
    Sketcher.Constraint("DistanceY", -1, 1, 23, 2, Q("14 mm")),
    Sketcher.Constraint("Distance", 20, Q("2.145898 mm")),
    Sketcher.Constraint("DistanceX", 4, 1, 4, 2, Q("2.37868 mm")),
])
sketch4.setExpression("Constraints[66]", "Params.sketch4_radius")
sketch4.setExpression("Constraints[67]", "Params.sketch4_width")
sketch4.setExpression("Constraints[68]", "Params.sketch4_width2")
sketch4.setExpression("Constraints[70]", "Params.sketch4_length")
sketch4.setExpression("Constraints[71]", "Params.sketch4_width3")
pad4 = body.newObject("PartDesign::Pad", "Pad003")
pad4.Profile = sketch4
pad4.setExpression("Length", "Params.pad4_length")

sketch5 = body.newObject("Sketcher::SketchObject", "Sketch004")
sketch5.AttachmentSupport = (doc.getObject("XY_Plane"), [""])
sketch5.MapMode = "FlatFace"
add_polygon(sketch5, [(20, 14), (20, -14), (10, -14), (10, 14)])
sketch5.addConstraint([
    Sketcher.Constraint("Vertical", 0),
    Sketcher.Constraint("Horizontal", 1),
    Sketcher.Constraint("Vertical", 2),
    Sketcher.Constraint("Horizontal", 3),
    Sketcher.Constraint("DistanceX", 1, 2, 1, 1, Q("10 mm")),
    Sketcher.Constraint("DistanceY", 0, 2, 0, 1, Q("28 mm")),
    Sketcher.Constraint("DistanceX", -1, 1, 0, 2, Q("20 mm")),
    Sketcher.Constraint("DistanceY", 0, 2, -1, 1, Q("14 mm")),
])
sketch5.setExpression("Constraints[8]", "Params.sketch5_width")
sketch5.setExpression("Constraints[9]", "Params.sketch5_height")
pocket1 = body.newObject("PartDesign::Pocket", "Pocket")
pocket1.Profile = sketch5
pocket1.Type = "ThroughAll"
pocket1.Reversed = True
doc.recompute()

fillet = body.newObject("PartDesign::Fillet", "Fillet")
fillet.Base = (pocket1, edges_at(pocket1, [
    (45, -15, 260),
    (45, 15, 260),
    (-15, 15, 260),
    (-15, -15, 260),
]))
fillet.setExpression("Radius", "Params.fillet_radius")

sketch6 = body.newObject("Sketcher::SketchObject", "Sketch005")
sketch6.AttachmentSupport = (doc.getObject("YZ_Plane"), [""])
sketch6.MapMode = "FlatFace"
sketch6.AttachmentOffset = App.Placement(V(0, 0, -6), App.Rotation())
sketch6.addGeometry(Part.Circle(V(0, 12, 0), V(0, 0, 1), 4), False)
sketch6.addConstraint([
    Sketcher.Constraint("PointOnObject", 0, 3, -2),
    Sketcher.Constraint("Diameter", 0, Q("8 mm")),
    Sketcher.Constraint("DistanceY", -1, 1, 0, 3, Q("12 mm")),
])
sketch6.setExpression("Constraints[1]", "Params.sketch6_diameter")
pocket2 = body.newObject("PartDesign::Pocket", "Pocket001")
pocket2.Profile = sketch6
pocket2.setExpression("Length", "Params.pocket2_length")
pocket2.Midplane = True
doc.recompute()

datumplane = body.newObject("PartDesign::Plane", "DatumPlane")
datumplane.AttachmentSupport = (doc.getObject("XY_Plane"), [""])
datumplane.MapMode = "FlatFace"
datumplane.AttachmentOffset = App.Placement(V(0, 0, 260), App.Rotation())
mirrored = body.newObject("PartDesign::Mirrored", "Mirrored")
mirrored.Originals = [pocket2]
mirrored.MirrorPlane = (datumplane, [""])
body.Tip = mirrored

doc.recompute()
